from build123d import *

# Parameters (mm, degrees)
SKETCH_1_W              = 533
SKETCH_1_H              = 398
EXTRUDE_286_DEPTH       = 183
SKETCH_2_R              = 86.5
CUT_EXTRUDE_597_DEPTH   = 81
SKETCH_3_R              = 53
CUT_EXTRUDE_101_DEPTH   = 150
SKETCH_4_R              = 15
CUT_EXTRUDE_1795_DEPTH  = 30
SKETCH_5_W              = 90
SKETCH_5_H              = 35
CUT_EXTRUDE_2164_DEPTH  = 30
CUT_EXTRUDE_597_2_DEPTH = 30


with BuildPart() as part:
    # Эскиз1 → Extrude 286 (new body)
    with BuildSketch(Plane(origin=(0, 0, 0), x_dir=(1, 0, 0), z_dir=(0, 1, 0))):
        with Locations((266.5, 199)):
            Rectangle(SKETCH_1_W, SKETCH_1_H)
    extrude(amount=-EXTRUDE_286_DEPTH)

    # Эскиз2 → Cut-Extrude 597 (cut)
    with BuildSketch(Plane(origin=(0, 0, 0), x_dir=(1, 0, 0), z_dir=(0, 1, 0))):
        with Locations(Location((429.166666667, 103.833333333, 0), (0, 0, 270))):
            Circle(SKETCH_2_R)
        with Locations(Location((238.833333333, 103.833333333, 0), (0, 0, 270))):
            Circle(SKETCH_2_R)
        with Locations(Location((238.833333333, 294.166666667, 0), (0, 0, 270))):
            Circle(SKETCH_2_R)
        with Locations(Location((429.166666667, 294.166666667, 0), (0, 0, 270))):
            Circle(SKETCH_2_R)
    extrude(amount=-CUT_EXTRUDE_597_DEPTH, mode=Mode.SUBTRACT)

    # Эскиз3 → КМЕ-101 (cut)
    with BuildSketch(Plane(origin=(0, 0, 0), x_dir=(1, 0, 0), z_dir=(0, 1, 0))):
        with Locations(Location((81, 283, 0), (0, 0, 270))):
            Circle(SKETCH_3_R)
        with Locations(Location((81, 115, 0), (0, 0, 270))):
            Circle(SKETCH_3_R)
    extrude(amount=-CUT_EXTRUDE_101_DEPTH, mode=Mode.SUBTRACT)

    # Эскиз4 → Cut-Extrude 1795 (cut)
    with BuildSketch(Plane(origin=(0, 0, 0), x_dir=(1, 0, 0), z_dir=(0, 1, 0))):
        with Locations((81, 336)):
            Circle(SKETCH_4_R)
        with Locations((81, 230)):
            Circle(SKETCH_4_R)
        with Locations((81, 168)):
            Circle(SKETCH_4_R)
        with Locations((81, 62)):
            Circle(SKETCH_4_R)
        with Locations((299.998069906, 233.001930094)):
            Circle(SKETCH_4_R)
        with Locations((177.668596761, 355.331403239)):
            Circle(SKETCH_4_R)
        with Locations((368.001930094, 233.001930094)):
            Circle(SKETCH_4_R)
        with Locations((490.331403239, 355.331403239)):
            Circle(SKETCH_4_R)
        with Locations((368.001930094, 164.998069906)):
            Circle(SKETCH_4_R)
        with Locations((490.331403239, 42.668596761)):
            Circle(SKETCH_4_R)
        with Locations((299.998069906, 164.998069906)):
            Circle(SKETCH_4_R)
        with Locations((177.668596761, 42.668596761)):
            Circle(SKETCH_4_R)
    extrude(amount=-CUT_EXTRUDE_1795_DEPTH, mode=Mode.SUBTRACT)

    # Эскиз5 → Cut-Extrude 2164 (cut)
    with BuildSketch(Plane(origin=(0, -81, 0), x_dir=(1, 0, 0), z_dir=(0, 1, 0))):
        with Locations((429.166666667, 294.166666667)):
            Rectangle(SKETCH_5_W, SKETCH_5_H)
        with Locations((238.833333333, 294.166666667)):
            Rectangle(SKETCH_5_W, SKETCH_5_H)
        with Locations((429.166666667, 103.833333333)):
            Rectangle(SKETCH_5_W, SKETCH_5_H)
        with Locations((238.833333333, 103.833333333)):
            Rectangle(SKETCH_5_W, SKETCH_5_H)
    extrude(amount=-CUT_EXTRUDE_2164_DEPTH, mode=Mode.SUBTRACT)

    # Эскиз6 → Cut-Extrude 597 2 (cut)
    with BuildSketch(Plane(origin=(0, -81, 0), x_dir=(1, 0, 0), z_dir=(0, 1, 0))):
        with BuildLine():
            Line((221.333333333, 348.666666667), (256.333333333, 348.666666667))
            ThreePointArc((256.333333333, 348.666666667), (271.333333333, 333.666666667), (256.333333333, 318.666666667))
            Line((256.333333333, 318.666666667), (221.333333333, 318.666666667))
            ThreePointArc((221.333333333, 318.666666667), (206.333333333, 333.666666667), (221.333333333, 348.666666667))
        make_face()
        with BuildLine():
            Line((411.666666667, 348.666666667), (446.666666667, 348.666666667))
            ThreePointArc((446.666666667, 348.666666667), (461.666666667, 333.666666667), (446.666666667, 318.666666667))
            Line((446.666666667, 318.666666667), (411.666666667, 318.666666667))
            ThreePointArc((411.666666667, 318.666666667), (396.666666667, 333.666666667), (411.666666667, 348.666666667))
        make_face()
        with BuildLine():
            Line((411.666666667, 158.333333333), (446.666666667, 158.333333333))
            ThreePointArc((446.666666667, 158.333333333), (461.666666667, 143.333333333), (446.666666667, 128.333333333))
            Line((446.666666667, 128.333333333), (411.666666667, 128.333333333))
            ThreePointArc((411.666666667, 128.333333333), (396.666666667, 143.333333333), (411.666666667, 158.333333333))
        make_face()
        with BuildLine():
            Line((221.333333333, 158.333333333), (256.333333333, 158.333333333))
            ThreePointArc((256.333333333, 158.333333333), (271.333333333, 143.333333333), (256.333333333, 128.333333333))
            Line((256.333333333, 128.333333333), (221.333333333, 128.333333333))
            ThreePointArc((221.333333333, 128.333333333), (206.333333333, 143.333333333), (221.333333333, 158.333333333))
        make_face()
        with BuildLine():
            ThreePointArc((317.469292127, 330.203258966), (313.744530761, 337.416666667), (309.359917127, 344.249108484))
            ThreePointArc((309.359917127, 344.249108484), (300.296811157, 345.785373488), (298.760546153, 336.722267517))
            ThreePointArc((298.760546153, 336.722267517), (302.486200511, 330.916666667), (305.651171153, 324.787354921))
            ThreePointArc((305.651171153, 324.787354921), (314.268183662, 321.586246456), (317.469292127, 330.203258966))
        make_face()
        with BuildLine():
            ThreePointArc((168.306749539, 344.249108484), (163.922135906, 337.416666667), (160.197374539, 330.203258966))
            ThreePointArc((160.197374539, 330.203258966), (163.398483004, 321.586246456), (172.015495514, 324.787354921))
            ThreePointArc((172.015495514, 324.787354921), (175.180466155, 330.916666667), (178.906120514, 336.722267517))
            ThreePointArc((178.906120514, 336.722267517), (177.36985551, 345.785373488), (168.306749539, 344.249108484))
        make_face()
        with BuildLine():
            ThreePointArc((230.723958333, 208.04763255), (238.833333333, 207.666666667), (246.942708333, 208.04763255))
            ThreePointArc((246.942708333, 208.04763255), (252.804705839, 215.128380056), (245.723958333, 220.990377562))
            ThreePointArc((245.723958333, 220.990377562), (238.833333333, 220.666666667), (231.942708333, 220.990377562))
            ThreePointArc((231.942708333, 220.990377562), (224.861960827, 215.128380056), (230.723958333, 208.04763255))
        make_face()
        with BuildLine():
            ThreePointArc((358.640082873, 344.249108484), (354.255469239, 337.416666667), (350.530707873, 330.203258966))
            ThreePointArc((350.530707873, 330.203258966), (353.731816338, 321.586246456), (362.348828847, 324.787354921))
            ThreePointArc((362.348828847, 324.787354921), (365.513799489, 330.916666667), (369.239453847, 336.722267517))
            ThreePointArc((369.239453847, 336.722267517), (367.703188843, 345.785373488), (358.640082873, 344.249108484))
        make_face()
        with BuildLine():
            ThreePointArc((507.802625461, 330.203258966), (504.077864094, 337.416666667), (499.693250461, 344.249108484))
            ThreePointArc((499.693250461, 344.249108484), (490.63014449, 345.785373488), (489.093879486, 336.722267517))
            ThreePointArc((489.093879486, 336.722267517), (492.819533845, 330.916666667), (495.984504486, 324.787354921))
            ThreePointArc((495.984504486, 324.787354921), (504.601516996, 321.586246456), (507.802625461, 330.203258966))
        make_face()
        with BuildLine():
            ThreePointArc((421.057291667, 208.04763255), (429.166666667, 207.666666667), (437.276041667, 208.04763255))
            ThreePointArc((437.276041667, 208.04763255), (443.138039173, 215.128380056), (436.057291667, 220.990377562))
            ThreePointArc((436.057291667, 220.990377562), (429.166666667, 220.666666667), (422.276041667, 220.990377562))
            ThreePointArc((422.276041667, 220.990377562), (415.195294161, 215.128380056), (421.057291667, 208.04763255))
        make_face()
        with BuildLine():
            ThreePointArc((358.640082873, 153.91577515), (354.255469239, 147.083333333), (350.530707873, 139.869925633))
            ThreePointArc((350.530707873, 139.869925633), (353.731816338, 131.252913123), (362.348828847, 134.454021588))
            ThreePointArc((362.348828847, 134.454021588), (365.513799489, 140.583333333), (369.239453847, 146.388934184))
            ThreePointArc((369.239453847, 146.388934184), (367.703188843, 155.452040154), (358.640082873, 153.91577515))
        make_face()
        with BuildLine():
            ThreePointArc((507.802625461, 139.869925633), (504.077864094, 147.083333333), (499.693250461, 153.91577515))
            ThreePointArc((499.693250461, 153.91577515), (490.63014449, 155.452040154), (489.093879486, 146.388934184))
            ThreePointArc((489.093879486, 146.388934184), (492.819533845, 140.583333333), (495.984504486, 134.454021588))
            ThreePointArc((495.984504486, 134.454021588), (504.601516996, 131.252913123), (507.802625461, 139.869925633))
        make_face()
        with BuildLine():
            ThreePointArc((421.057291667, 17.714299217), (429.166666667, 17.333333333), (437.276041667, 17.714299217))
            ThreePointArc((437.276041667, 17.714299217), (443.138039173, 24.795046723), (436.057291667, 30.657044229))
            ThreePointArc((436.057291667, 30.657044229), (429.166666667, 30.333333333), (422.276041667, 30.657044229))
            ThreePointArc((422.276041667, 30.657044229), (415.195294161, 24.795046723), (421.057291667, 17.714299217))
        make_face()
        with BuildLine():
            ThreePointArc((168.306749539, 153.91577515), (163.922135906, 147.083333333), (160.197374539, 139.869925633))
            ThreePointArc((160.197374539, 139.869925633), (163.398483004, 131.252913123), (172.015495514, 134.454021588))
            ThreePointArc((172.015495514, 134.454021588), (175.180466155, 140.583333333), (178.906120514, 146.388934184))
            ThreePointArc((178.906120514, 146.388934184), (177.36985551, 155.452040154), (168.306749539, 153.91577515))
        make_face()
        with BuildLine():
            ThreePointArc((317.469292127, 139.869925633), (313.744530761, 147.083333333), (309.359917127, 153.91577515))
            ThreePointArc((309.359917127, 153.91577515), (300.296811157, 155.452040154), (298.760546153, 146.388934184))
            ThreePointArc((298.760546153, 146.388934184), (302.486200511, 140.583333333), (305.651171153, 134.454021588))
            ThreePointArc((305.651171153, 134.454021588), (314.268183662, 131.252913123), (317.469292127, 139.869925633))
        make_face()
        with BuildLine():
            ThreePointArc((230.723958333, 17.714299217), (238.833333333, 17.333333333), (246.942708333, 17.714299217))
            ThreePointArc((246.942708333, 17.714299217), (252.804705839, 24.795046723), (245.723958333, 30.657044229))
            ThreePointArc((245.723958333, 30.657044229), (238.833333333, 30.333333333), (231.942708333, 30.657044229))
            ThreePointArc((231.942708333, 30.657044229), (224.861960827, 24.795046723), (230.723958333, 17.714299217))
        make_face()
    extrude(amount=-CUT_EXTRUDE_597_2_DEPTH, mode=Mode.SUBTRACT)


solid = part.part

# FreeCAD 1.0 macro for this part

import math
import FreeCAD as App
import Part
import Sketcher
from FreeCAD import Vector
Q = App.Units.Quantity

doc = App.newDocument("Part")
body = doc.addObject("PartDesign::Body", "Body")

# Sketch on XZ plane
sketch1 = doc.addObject("Sketcher::SketchObject", "Sketch")
body.addObject(sketch1)
sketch1.AttachmentSupport = (doc.XZ_Plane, [""])
sketch1.MapMode = "FlatFace"
sketch1.addGeometry(Part.LineSegment(Vector(0, -398, 0), Vector(0, 0, 0)), False)
sketch1.addGeometry(Part.LineSegment(Vector(0, 0, 0), Vector(533, 0, 0)), False)
sketch1.addGeometry(Part.LineSegment(Vector(533, 0, 0), Vector(533, -398, 0)), False)
sketch1.addGeometry(Part.LineSegment(Vector(533, -398, 0), Vector(0, -398, 0)), False)
sketch1.addConstraint(Sketcher.Constraint("Coincident", 0, 2, 1, 1))
sketch1.addConstraint(Sketcher.Constraint("Coincident", 1, 2, 2, 1))
sketch1.addConstraint(Sketcher.Constraint("Coincident", 2, 2, 3, 1))
sketch1.addConstraint(Sketcher.Constraint("Coincident", 3, 2, 0, 1))
sketch1.addConstraint(Sketcher.Constraint("Vertical", 0))
sketch1.addConstraint(Sketcher.Constraint("Horizontal", 1))
sketch1.addConstraint(Sketcher.Constraint("Vertical", 2))
sketch1.addConstraint(Sketcher.Constraint("Horizontal", 3))
sketch1.addConstraint(Sketcher.Constraint("Coincident", 0, 2, -1, 1))
sketch1.addConstraint(Sketcher.Constraint("DistanceX", 1, 1, 1, 2, Q("533 mm")))
sketch1.addConstraint(Sketcher.Constraint("DistanceY", 0, 1, 0, 2, Q("398 mm")))
pad1 = doc.addObject("PartDesign::Pad", "Pad")
body.addObject(pad1)
pad1.Profile = sketch1
pad1.Length = 183

# Sketch on XZ plane
sketch2 = doc.addObject("Sketcher::SketchObject", "Sketch001")
body.addObject(sketch2)
sketch2.AttachmentSupport = (doc.XZ_Plane, [""])
sketch2.MapMode = "FlatFace"
sketch2.addGeometry(Part.Circle(Vector(429, -104, 0), Vector(0, 0, 1), 86), False)
sketch2.addGeometry(Part.Circle(Vector(239, -104, 0), Vector(0, 0, 1), 86), False)
sketch2.addGeometry(Part.Circle(Vector(239, -294, 0), Vector(0, 0, 1), 86), False)
sketch2.addGeometry(Part.Circle(Vector(429, -294, 0), Vector(0, 0, 1), 86), False)
sketch2.addConstraint(Sketcher.Constraint("Equal", 0, 1))
sketch2.addConstraint(Sketcher.Constraint("Equal", 1, 2))
sketch2.addConstraint(Sketcher.Constraint("Equal", 2, 3))
sketch2.addConstraint(Sketcher.Constraint("Horizontal", 0, 3, 1, 3))
sketch2.addConstraint(Sketcher.Constraint("Horizontal", 2, 3, 3, 3))
sketch2.addConstraint(Sketcher.Constraint("Vertical", 1, 3, 2, 3))
sketch2.addConstraint(Sketcher.Constraint("Vertical", 0, 3, 3, 3))
sketch2.addConstraint(Sketcher.Constraint("Diameter", 0, Q("173 mm")))
sketch2.addConstraint(Sketcher.Constraint("DistanceX", -1, 1, 0, 3, Q("429.166667 mm")))
sketch2.addConstraint(Sketcher.Constraint("DistanceY", 0, 3, -1, 1, Q("103.833333 mm")))
sketch2.addConstraint(Sketcher.Constraint("DistanceX", -1, 1, 1, 3, Q("238.833333 mm")))
sketch2.addConstraint(Sketcher.Constraint("DistanceY", 2, 3, -1, 1, Q("294.166667 mm")))
pocket1 = doc.addObject("PartDesign::Pocket", "Pocket")
body.addObject(pocket1)
pocket1.Profile = sketch2
pocket1.Length = 81
pocket1.Reversed = True

# Sketch on XZ plane
sketch3 = doc.addObject("Sketcher::SketchObject", "Sketch002")
body.addObject(sketch3)
sketch3.AttachmentSupport = (doc.XZ_Plane, [""])
sketch3.MapMode = "FlatFace"
sketch3.addGeometry(Part.Circle(Vector(81, -283, 0), Vector(0, 0, 1), 53), False)
sketch3.addGeometry(Part.Circle(Vector(81, -115, 0), Vector(0, 0, 1), 53), False)
sketch3.addConstraint(Sketcher.Constraint("Equal", 0, 1))
sketch3.addConstraint(Sketcher.Constraint("Vertical", 0, 3, 1, 3))
sketch3.addConstraint(Sketcher.Constraint("Diameter", 0, Q("106 mm")))
sketch3.addConstraint(Sketcher.Constraint("DistanceX", -1, 1, 0, 3, Q("81 mm")))
sketch3.addConstraint(Sketcher.Constraint("DistanceY", 0, 3, -1, 1, Q("283 mm")))
sketch3.addConstraint(Sketcher.Constraint("DistanceY", 1, 3, -1, 1, Q("115 mm")))
pocket2 = doc.addObject("PartDesign::Pocket", "Pocket001")
body.addObject(pocket2)
pocket2.Profile = sketch3
pocket2.Length = 150
pocket2.Reversed = True

# Sketch on XZ plane
sketch4 = doc.addObject("Sketcher::SketchObject", "Sketch003")
body.addObject(sketch4)
sketch4.AttachmentSupport = (doc.XZ_Plane, [""])
sketch4.MapMode = "FlatFace"
sketch4.addGeometry(Part.Circle(Vector(81, -336, 0), Vector(0, 0, 1), 15), False)
sketch4.addGeometry(Part.Circle(Vector(81, -230, 0), Vector(0, 0, 1), 15), False)
sketch4.addGeometry(Part.Circle(Vector(81, -168, 0), Vector(0, 0, 1), 15), False)
sketch4.addGeometry(Part.Circle(Vector(81, -62, 0), Vector(0, 0, 1), 15), False)
sketch4.addGeometry(Part.Circle(Vector(300, -233, 0), Vector(0, 0, 1), 15), False)
sketch4.addGeometry(Part.Circle(Vector(178, -355, 0), Vector(0, 0, 1), 15), False)
sketch4.addGeometry(Part.Circle(Vector(368, -233, 0), Vector(0, 0, 1), 15), False)
sketch4.addGeometry(Part.Circle(Vector(490, -355, 0), Vector(0, 0, 1), 15), False)
sketch4.addGeometry(Part.Circle(Vector(368, -165, 0), Vector(0, 0, 1), 15), False)
sketch4.addGeometry(Part.Circle(Vector(490, -43, 0), Vector(0, 0, 1), 15), False)
sketch4.addGeometry(Part.Circle(Vector(300, -165, 0), Vector(0, 0, 1), 15), False)
sketch4.addGeometry(Part.Circle(Vector(178, -43, 0), Vector(0, 0, 1), 15), False)
sketch4.addConstraint(Sketcher.Constraint("Equal", 0, 1))
sketch4.addConstraint(Sketcher.Constraint("Equal", 1, 2))
sketch4.addConstraint(Sketcher.Constraint("Equal", 2, 3))
sketch4.addConstraint(Sketcher.Constraint("Equal", 3, 4))
sketch4.addConstraint(Sketcher.Constraint("Equal", 4, 5))
sketch4.addConstraint(Sketcher.Constraint("Equal", 5, 6))
sketch4.addConstraint(Sketcher.Constraint("Equal", 6, 7))
sketch4.addConstraint(Sketcher.Constraint("Equal", 7, 8))
sketch4.addConstraint(Sketcher.Constraint("Equal", 8, 9))
sketch4.addConstraint(Sketcher.Constraint("Equal", 9, 10))
sketch4.addConstraint(Sketcher.Constraint("Equal", 10, 11))
sketch4.addConstraint(Sketcher.Constraint("Horizontal", 4, 3, 6, 3))
sketch4.addConstraint(Sketcher.Constraint("Horizontal", 5, 3, 7, 3))
sketch4.addConstraint(Sketcher.Constraint("Horizontal", 8, 3, 10, 3))
sketch4.addConstraint(Sketcher.Constraint("Horizontal", 9, 3, 11, 3))
sketch4.addConstraint(Sketcher.Constraint("Vertical", 0, 3, 1, 3))
sketch4.addConstraint(Sketcher.Constraint("Vertical", 1, 3, 2, 3))
sketch4.addConstraint(Sketcher.Constraint("Vertical", 2, 3, 3, 3))
sketch4.addConstraint(Sketcher.Constraint("Vertical", 6, 3, 8, 3))
sketch4.addConstraint(Sketcher.Constraint("Vertical", 7, 3, 9, 3))
sketch4.addConstraint(Sketcher.Constraint("Vertical", 4, 3, 10, 3))
sketch4.addConstraint(Sketcher.Constraint("Vertical", 5, 3, 11, 3))
sketch4.addConstraint(Sketcher.Constraint("Diameter", 0, Q("30 mm")))
sketch4.addConstraint(Sketcher.Constraint("DistanceX", -1, 1, 0, 3, Q("81 mm")))
sketch4.addConstraint(Sketcher.Constraint("DistanceY", 0, 3, -1, 1, Q("336 mm")))
sketch4.addConstraint(Sketcher.Constraint("DistanceY", 1, 3, -1, 1, Q("230 mm")))
sketch4.addConstraint(Sketcher.Constraint("DistanceY", 2, 3, -1, 1, Q("168 mm")))
sketch4.addConstraint(Sketcher.Constraint("DistanceY", 3, 3, -1, 1, Q("62 mm")))
sketch4.addConstraint(Sketcher.Constraint("DistanceX", -1, 1, 4, 3, Q("299.99807 mm")))
sketch4.addConstraint(Sketcher.Constraint("DistanceY", 4, 3, -1, 1, Q("233.00193 mm")))
sketch4.addConstraint(Sketcher.Constraint("DistanceX", -1, 1, 6, 3, Q("368.00193 mm")))
sketch4.addConstraint(Sketcher.Constraint("DistanceY", 8, 3, -1, 1, Q("164.99807 mm")))
sketch4.addConstraint(Sketcher.Constraint("DistanceX", -1, 1, 5, 3, Q("177.668597 mm")))
sketch4.addConstraint(Sketcher.Constraint("DistanceY", 5, 3, -1, 1, Q("355.331403 mm")))
sketch4.addConstraint(Sketcher.Constraint("DistanceX", -1, 1, 7, 3, Q("490.331403 mm")))
sketch4.addConstraint(Sketcher.Constraint("DistanceY", 9, 3, -1, 1, Q("42.668597 mm")))
pocket3 = doc.addObject("PartDesign::Pocket", "Pocket002")
body.addObject(pocket3)
pocket3.Profile = sketch4
pocket3.Length = 30
pocket3.Reversed = True

# Sketch on XZ plane
sketch5 = doc.addObject("Sketcher::SketchObject", "Sketch004")
body.addObject(sketch5)
sketch5.AttachmentSupport = (doc.XZ_Plane, [""])
sketch5.MapMode = "FlatFace"
sketch5.AttachmentOffset = App.Placement(Vector(0, 0, 81), App.Rotation())
sketch5.addGeometry(Part.LineSegment(Vector(384, -312, 0), Vector(384, -277, 0)), False)
sketch5.addGeometry(Part.LineSegment(Vector(384, -277, 0), Vector(474, -277, 0)), False)
sketch5.addGeometry(Part.LineSegment(Vector(474, -277, 0), Vector(474, -312, 0)), False)
sketch5.addGeometry(Part.LineSegment(Vector(474, -312, 0), Vector(384, -312, 0)), False)
sketch5.addGeometry(Part.LineSegment(Vector(194, -312, 0), Vector(194, -277, 0)), False)
sketch5.addGeometry(Part.LineSegment(Vector(194, -277, 0), Vector(284, -277, 0)), False)
sketch5.addGeometry(Part.LineSegment(Vector(284, -277, 0), Vector(284, -312, 0)), False)
sketch5.addGeometry(Part.LineSegment(Vector(284, -312, 0), Vector(194, -312, 0)), False)
sketch5.addGeometry(Part.LineSegment(Vector(384, -121, 0), Vector(384, -86, 0)), False)
sketch5.addGeometry(Part.LineSegment(Vector(384, -86, 0), Vector(474, -86, 0)), False)
sketch5.addGeometry(Part.LineSegment(Vector(474, -86, 0), Vector(474, -121, 0)), False)
sketch5.addGeometry(Part.LineSegment(Vector(474, -121, 0), Vector(384, -121, 0)), False)
sketch5.addGeometry(Part.LineSegment(Vector(194, -121, 0), Vector(194, -86, 0)), False)
sketch5.addGeometry(Part.LineSegment(Vector(194, -86, 0), Vector(284, -86, 0)), False)
sketch5.addGeometry(Part.LineSegment(Vector(284, -86, 0), Vector(284, -121, 0)), False)
sketch5.addGeometry(Part.LineSegment(Vector(284, -121, 0), Vector(194, -121, 0)), False)
sketch5.addConstraint(Sketcher.Constraint("Coincident", 0, 2, 1, 1))
sketch5.addConstraint(Sketcher.Constraint("Coincident", 1, 2, 2, 1))
sketch5.addConstraint(Sketcher.Constraint("Coincident", 2, 2, 3, 1))
sketch5.addConstraint(Sketcher.Constraint("Coincident", 3, 2, 0, 1))
sketch5.addConstraint(Sketcher.Constraint("Coincident", 4, 2, 5, 1))
sketch5.addConstraint(Sketcher.Constraint("Coincident", 5, 2, 6, 1))
sketch5.addConstraint(Sketcher.Constraint("Coincident", 6, 2, 7, 1))
sketch5.addConstraint(Sketcher.Constraint("Coincident", 7, 2, 4, 1))
sketch5.addConstraint(Sketcher.Constraint("Coincident", 8, 2, 9, 1))
sketch5.addConstraint(Sketcher.Constraint("Coincident", 9, 2, 10, 1))
sketch5.addConstraint(Sketcher.Constraint("Coincident", 10, 2, 11, 1))
sketch5.addConstraint(Sketcher.Constraint("Coincident", 11, 2, 8, 1))
sketch5.addConstraint(Sketcher.Constraint("Coincident", 12, 2, 13, 1))
sketch5.addConstraint(Sketcher.Constraint("Coincident", 13, 2, 14, 1))
sketch5.addConstraint(Sketcher.Constraint("Coincident", 14, 2, 15, 1))
sketch5.addConstraint(Sketcher.Constraint("Coincident", 15, 2, 12, 1))
sketch5.addConstraint(Sketcher.Constraint("Vertical", 0))
sketch5.addConstraint(Sketcher.Constraint("Horizontal", 1))
sketch5.addConstraint(Sketcher.Constraint("Vertical", 2))
sketch5.addConstraint(Sketcher.Constraint("Horizontal", 3))
sketch5.addConstraint(Sketcher.Constraint("Vertical", 4))
sketch5.addConstraint(Sketcher.Constraint("Horizontal", 5))
sketch5.addConstraint(Sketcher.Constraint("Vertical", 6))
sketch5.addConstraint(Sketcher.Constraint("Horizontal", 7))
sketch5.addConstraint(Sketcher.Constraint("Vertical", 8))
sketch5.addConstraint(Sketcher.Constraint("Horizontal", 9))
sketch5.addConstraint(Sketcher.Constraint("Vertical", 10))
sketch5.addConstraint(Sketcher.Constraint("Horizontal", 11))
sketch5.addConstraint(Sketcher.Constraint("Vertical", 12))
sketch5.addConstraint(Sketcher.Constraint("Horizontal", 13))
sketch5.addConstraint(Sketcher.Constraint("Vertical", 14))
sketch5.addConstraint(Sketcher.Constraint("Horizontal", 15))
sketch5.addConstraint(Sketcher.Constraint("Horizontal", 1, 2, 4, 2))
sketch5.addConstraint(Sketcher.Constraint("Horizontal", 3, 2, 6, 2))
sketch5.addConstraint(Sketcher.Constraint("Horizontal", 9, 2, 12, 2))
sketch5.addConstraint(Sketcher.Constraint("Horizontal", 11, 2, 14, 2))
sketch5.addConstraint(Sketcher.Constraint("Vertical", 3, 2, 8, 2))
sketch5.addConstraint(Sketcher.Constraint("Vertical", 2, 2, 9, 2))
sketch5.addConstraint(Sketcher.Constraint("Vertical", 7, 2, 12, 2))
sketch5.addConstraint(Sketcher.Constraint("Vertical", 6, 2, 13, 2))
sketch5.addConstraint(Sketcher.Constraint("Equal", 3, 5))
sketch5.addConstraint(Sketcher.Constraint("Equal", 6, 8))
sketch5.addConstraint(Sketcher.Constraint("DistanceX", 1, 1, 1, 2, Q("90 mm")))
sketch5.addConstraint(Sketcher.Constraint("DistanceY", 0, 1, 0, 2, Q("35 mm")))
sketch5.addConstraint(Sketcher.Constraint("DistanceX", -1, 1, 0, 2, Q("384.166667 mm")))
sketch5.addConstraint(Sketcher.Constraint("DistanceY", 0, 2, -1, 1, Q("276.666667 mm")))
sketch5.addConstraint(Sketcher.Constraint("DistanceX", -1, 1, 4, 2, Q("193.833333 mm")))
sketch5.addConstraint(Sketcher.Constraint("DistanceY", 8, 2, -1, 1, Q("86.333333 mm")))
pocket4 = doc.addObject("PartDesign::Pocket", "Pocket003")
body.addObject(pocket4)
pocket4.Profile = sketch5
pocket4.Length = 30
pocket4.Reversed = True

# Sketch on XZ plane
sketch6 = doc.addObject("Sketcher::SketchObject", "Sketch005")
body.addObject(sketch6)
sketch6.AttachmentSupport = (doc.XZ_Plane, [""])
sketch6.MapMode = "FlatFace"
sketch6.AttachmentOffset = App.Placement(Vector(0, 0, 81), App.Rotation())
sketch6.addGeometry(Part.LineSegment(Vector(256.333333, -348.666667, 0), Vector(221.333333, -348.666667, 0)), False)
sketch6.addGeometry(Part.ArcOfCircle(Part.Circle(Vector(221.333333, -333.666667, 0), Vector(0, 0, 1), 15), math.radians(90), math.radians(270)), False)
sketch6.addGeometry(Part.LineSegment(Vector(221.333333, -318.666667, 0), Vector(256.333333, -318.666667, 0)), False)
sketch6.addGeometry(Part.ArcOfCircle(Part.Circle(Vector(256.333333, -333.666667, 0), Vector(0, 0, 1), 15), math.radians(-90), math.radians(90)), False)
sketch6.addGeometry(Part.LineSegment(Vector(446.666667, -348.666667, 0), Vector(411.666667, -348.666667, 0)), False)
sketch6.addGeometry(Part.ArcOfCircle(Part.Circle(Vector(411.666667, -333.666667, 0), Vector(0, 0, 1), 15), math.radians(90), math.radians(270)), False)
sketch6.addGeometry(Part.LineSegment(Vector(411.666667, -318.666667, 0), Vector(446.666667, -318.666667, 0)), False)
sketch6.addGeometry(Part.ArcOfCircle(Part.Circle(Vector(446.666667, -333.666667, 0), Vector(0, 0, 1), 15), math.radians(-90), math.radians(90)), False)
sketch6.addGeometry(Part.LineSegment(Vector(446.666667, -158.333333, 0), Vector(411.666667, -158.333333, 0)), False)
sketch6.addGeometry(Part.ArcOfCircle(Part.Circle(Vector(411.666667, -143.333333, 0), Vector(0, 0, 1), 15), math.radians(90), math.radians(270)), False)
sketch6.addGeometry(Part.LineSegment(Vector(411.666667, -128.333333, 0), Vector(446.666667, -128.333333, 0)), False)
sketch6.addGeometry(Part.ArcOfCircle(Part.Circle(Vector(446.666667, -143.333333, 0), Vector(0, 0, 1), 15), math.radians(-90), math.radians(90)), False)
sketch6.addGeometry(Part.LineSegment(Vector(256.333333, -158.333333, 0), Vector(221.333333, -158.333333, 0)), False)
sketch6.addGeometry(Part.ArcOfCircle(Part.Circle(Vector(221.333333, -143.333333, 0), Vector(0, 0, 1), 15), math.radians(90), math.radians(270)), False)
sketch6.addGeometry(Part.LineSegment(Vector(221.333333, -128.333333, 0), Vector(256.333333, -128.333333, 0)), False)
sketch6.addGeometry(Part.ArcOfCircle(Part.Circle(Vector(256.333333, -143.333333, 0), Vector(0, 0, 1), 15), math.radians(-90), math.radians(90)), False)
sketch6.addGeometry(Part.ArcOfCircle(Part.Circle(Vector(238.833333, -294.166667, 0), Vector(0, 0, 1), 86.5), math.radians(-35.379379), math.radians(-24.620621)), False)
sketch6.addGeometry(Part.ArcOfCircle(Part.Circle(Vector(304.060232, -340.485688, 0), Vector(0, 0, 1), 6.5), math.radians(144.620621), math.radians(324.620621)), False)
sketch6.addGeometry(Part.ArcOfCircle(Part.Circle(Vector(238.833333, -294.166667, 0), Vector(0, 0, 1), 73.5), math.radians(-35.379379), math.radians(-24.620621)), False)
sketch6.addGeometry(Part.ArcOfCircle(Part.Circle(Vector(311.560232, -327.495307, 0), Vector(0, 0, 1), 6.5), math.radians(-24.620621), math.radians(155.379379)), False)
sketch6.addGeometry(Part.ArcOfCircle(Part.Circle(Vector(238.833333, -294.166667, 0), Vector(0, 0, 1), 86.5), math.radians(-155.379379), math.radians(-144.620621)), False)
sketch6.addGeometry(Part.ArcOfCircle(Part.Circle(Vector(166.106435, -327.495307, 0), Vector(0, 0, 1), 6.5), math.radians(24.620621), math.radians(204.620621)), False)
sketch6.addGeometry(Part.ArcOfCircle(Part.Circle(Vector(238.833333, -294.166667, 0), Vector(0, 0, 1), 73.5), math.radians(-155.379379), math.radians(-144.620621)), False)
sketch6.addGeometry(Part.ArcOfCircle(Part.Circle(Vector(173.606435, -340.485688, 0), Vector(0, 0, 1), 6.5), math.radians(-144.620621), math.radians(35.379379)), False)
sketch6.addGeometry(Part.ArcOfCircle(Part.Circle(Vector(238.833333, -294.166667, 0), Vector(0, 0, 1), 86.5), math.radians(84.620621), math.radians(95.379379)), False)
sketch6.addGeometry(Part.ArcOfCircle(Part.Circle(Vector(246.333333, -214.519005, 0), Vector(0, 0, 1), 6.5), math.radians(-95.379379), math.radians(84.620621)), False)
sketch6.addGeometry(Part.ArcOfCircle(Part.Circle(Vector(238.833333, -294.166667, 0), Vector(0, 0, 1), 73.5), math.radians(84.620621), math.radians(95.379379)), False)
sketch6.addGeometry(Part.ArcOfCircle(Part.Circle(Vector(231.333333, -214.519005, 0), Vector(0, 0, 1), 6.5), math.radians(95.379379), math.radians(275.379379)), False)
sketch6.addGeometry(Part.ArcOfCircle(Part.Circle(Vector(429.166667, -294.166667, 0), Vector(0, 0, 1), 86.5), math.radians(-155.379379), math.radians(-144.620621)), False)
sketch6.addGeometry(Part.ArcOfCircle(Part.Circle(Vector(356.439768, -327.495307, 0), Vector(0, 0, 1), 6.5), math.radians(24.620621), math.radians(204.620621)), False)
sketch6.addGeometry(Part.ArcOfCircle(Part.Circle(Vector(429.166667, -294.166667, 0), Vector(0, 0, 1), 73.5), math.radians(-155.379379), math.radians(-144.620621)), False)
sketch6.addGeometry(Part.ArcOfCircle(Part.Circle(Vector(363.939768, -340.485688, 0), Vector(0, 0, 1), 6.5), math.radians(-144.620621), math.radians(35.379379)), False)
sketch6.addGeometry(Part.ArcOfCircle(Part.Circle(Vector(429.166667, -294.166667, 0), Vector(0, 0, 1), 86.5), math.radians(-35.379379), math.radians(-24.620621)), False)
sketch6.addGeometry(Part.ArcOfCircle(Part.Circle(Vector(494.393565, -340.485688, 0), Vector(0, 0, 1), 6.5), math.radians(144.620621), math.radians(324.620621)), False)
sketch6.addGeometry(Part.ArcOfCircle(Part.Circle(Vector(429.166667, -294.166667, 0), Vector(0, 0, 1), 73.5), math.radians(-35.379379), math.radians(-24.620621)), False)
sketch6.addGeometry(Part.ArcOfCircle(Part.Circle(Vector(501.893565, -327.495307, 0), Vector(0, 0, 1), 6.5), math.radians(-24.620621), math.radians(155.379379)), False)
sketch6.addGeometry(Part.ArcOfCircle(Part.Circle(Vector(429.166667, -294.166667, 0), Vector(0, 0, 1), 86.5), math.radians(84.620621), math.radians(95.379379)), False)
sketch6.addGeometry(Part.ArcOfCircle(Part.Circle(Vector(436.666667, -214.519005, 0), Vector(0, 0, 1), 6.5), math.radians(-95.379379), math.radians(84.620621)), False)
sketch6.addGeometry(Part.ArcOfCircle(Part.Circle(Vector(429.166667, -294.166667, 0), Vector(0, 0, 1), 73.5), math.radians(84.620621), math.radians(95.379379)), False)
sketch6.addGeometry(Part.ArcOfCircle(Part.Circle(Vector(421.666667, -214.519005, 0), Vector(0, 0, 1), 6.5), math.radians(95.379379), math.radians(275.379379)), False)
sketch6.addGeometry(Part.ArcOfCircle(Part.Circle(Vector(429.166667, -103.833333, 0), Vector(0, 0, 1), 86.5), math.radians(-155.379379), math.radians(-144.620621)), False)
sketch6.addGeometry(Part.ArcOfCircle(Part.Circle(Vector(356.439768, -137.161974, 0), Vector(0, 0, 1), 6.5), math.radians(24.620621), math.radians(204.620621)), False)
sketch6.addGeometry(Part.ArcOfCircle(Part.Circle(Vector(429.166667, -103.833333, 0), Vector(0, 0, 1), 73.5), math.radians(-155.379379), math.radians(-144.620621)), False)
sketch6.addGeometry(Part.ArcOfCircle(Part.Circle(Vector(363.939768, -150.152355, 0), Vector(0, 0, 1), 6.5), math.radians(-144.620621), math.radians(35.379379)), False)
sketch6.addGeometry(Part.ArcOfCircle(Part.Circle(Vector(429.166667, -103.833333, 0), Vector(0, 0, 1), 86.5), math.radians(-35.379379), math.radians(-24.620621)), False)
sketch6.addGeometry(Part.ArcOfCircle(Part.Circle(Vector(494.393565, -150.152355, 0), Vector(0, 0, 1), 6.5), math.radians(144.620621), math.radians(324.620621)), False)
sketch6.addGeometry(Part.ArcOfCircle(Part.Circle(Vector(429.166667, -103.833333, 0), Vector(0, 0, 1), 73.5), math.radians(-35.379379), math.radians(-24.620621)), False)
sketch6.addGeometry(Part.ArcOfCircle(Part.Circle(Vector(501.893565, -137.161974, 0), Vector(0, 0, 1), 6.5), math.radians(-24.620621), math.radians(155.379379)), False)
sketch6.addGeometry(Part.ArcOfCircle(Part.Circle(Vector(429.166667, -103.833333, 0), Vector(0, 0, 1), 86.5), math.radians(84.620621), math.radians(95.379379)), False)
sketch6.addGeometry(Part.ArcOfCircle(Part.Circle(Vector(436.666667, -24.185672, 0), Vector(0, 0, 1), 6.5), math.radians(-95.379379), math.radians(84.620621)), False)
sketch6.addGeometry(Part.ArcOfCircle(Part.Circle(Vector(429.166667, -103.833333, 0), Vector(0, 0, 1), 73.5), math.radians(84.620621), math.radians(95.379379)), False)
sketch6.addGeometry(Part.ArcOfCircle(Part.Circle(Vector(421.666667, -24.185672, 0), Vector(0, 0, 1), 6.5), math.radians(95.379379), math.radians(275.379379)), False)
sketch6.addGeometry(Part.ArcOfCircle(Part.Circle(Vector(238.833333, -103.833333, 0), Vector(0, 0, 1), 86.5), math.radians(-155.379379), math.radians(-144.620621)), False)
sketch6.addGeometry(Part.ArcOfCircle(Part.Circle(Vector(166.106435, -137.161974, 0), Vector(0, 0, 1), 6.5), math.radians(24.620621), math.radians(204.620621)), False)
sketch6.addGeometry(Part.ArcOfCircle(Part.Circle(Vector(238.833333, -103.833333, 0), Vector(0, 0, 1), 73.5), math.radians(-155.379379), math.radians(-144.620621)), False)
sketch6.addGeometry(Part.ArcOfCircle(Part.Circle(Vector(173.606435, -150.152355, 0), Vector(0, 0, 1), 6.5), math.radians(-144.620621), math.radians(35.379379)), False)
sketch6.addGeometry(Part.ArcOfCircle(Part.Circle(Vector(238.833333, -103.833333, 0), Vector(0, 0, 1), 86.5), math.radians(-35.379379), math.radians(-24.620621)), False)
sketch6.addGeometry(Part.ArcOfCircle(Part.Circle(Vector(304.060232, -150.152355, 0), Vector(0, 0, 1), 6.5), math.radians(144.620621), math.radians(324.620621)), False)
sketch6.addGeometry(Part.ArcOfCircle(Part.Circle(Vector(238.833333, -103.833333, 0), Vector(0, 0, 1), 73.5), math.radians(-35.379379), math.radians(-24.620621)), False)
sketch6.addGeometry(Part.ArcOfCircle(Part.Circle(Vector(311.560232, -137.161974, 0), Vector(0, 0, 1), 6.5), math.radians(-24.620621), math.radians(155.379379)), False)
sketch6.addGeometry(Part.ArcOfCircle(Part.Circle(Vector(238.833333, -103.833333, 0), Vector(0, 0, 1), 86.5), math.radians(84.620621), math.radians(95.379379)), False)
sketch6.addGeometry(Part.ArcOfCircle(Part.Circle(Vector(246.333333, -24.185672, 0), Vector(0, 0, 1), 6.5), math.radians(-95.379379), math.radians(84.620621)), False)
sketch6.addGeometry(Part.ArcOfCircle(Part.Circle(Vector(238.833333, -103.833333, 0), Vector(0, 0, 1), 73.5), math.radians(84.620621), math.radians(95.379379)), False)
sketch6.addGeometry(Part.ArcOfCircle(Part.Circle(Vector(231.333333, -24.185672, 0), Vector(0, 0, 1), 6.5), math.radians(95.379379), math.radians(275.379379)), False)
sketch6.addConstraint(Sketcher.Constraint("Coincident", 0, 2, 1, 2))
sketch6.addConstraint(Sketcher.Constraint("Coincident", 1, 1, 2, 1))
sketch6.addConstraint(Sketcher.Constraint("Coincident", 2, 2, 3, 2))
sketch6.addConstraint(Sketcher.Constraint("Coincident", 3, 1, 0, 1))
sketch6.addConstraint(Sketcher.Constraint("Coincident", 4, 2, 5, 2))
sketch6.addConstraint(Sketcher.Constraint("Coincident", 5, 1, 6, 1))
sketch6.addConstraint(Sketcher.Constraint("Coincident", 6, 2, 7, 2))
sketch6.addConstraint(Sketcher.Constraint("Coincident", 7, 1, 4, 1))
sketch6.addConstraint(Sketcher.Constraint("Coincident", 8, 2, 9, 2))
sketch6.addConstraint(Sketcher.Constraint("Coincident", 9, 1, 10, 1))
sketch6.addConstraint(Sketcher.Constraint("Coincident", 10, 2, 11, 2))
sketch6.addConstraint(Sketcher.Constraint("Coincident", 11, 1, 8, 1))
sketch6.addConstraint(Sketcher.Constraint("Coincident", 12, 2, 13, 2))
sketch6.addConstraint(Sketcher.Constraint("Coincident", 13, 1, 14, 1))
sketch6.addConstraint(Sketcher.Constraint("Coincident", 14, 2, 15, 2))
sketch6.addConstraint(Sketcher.Constraint("Coincident", 15, 1, 12, 1))
sketch6.addConstraint(Sketcher.Constraint("Coincident", 16, 1, 17, 2))
sketch6.addConstraint(Sketcher.Constraint("Coincident", 17, 1, 18, 1))
sketch6.addConstraint(Sketcher.Constraint("Coincident", 18, 2, 19, 2))
sketch6.addConstraint(Sketcher.Constraint("Coincident", 19, 1, 16, 2))
sketch6.addConstraint(Sketcher.Constraint("Coincident", 20, 1, 21, 2))
sketch6.addConstraint(Sketcher.Constraint("Coincident", 21, 1, 22, 1))
sketch6.addConstraint(Sketcher.Constraint("Coincident", 22, 2, 23, 2))
sketch6.addConstraint(Sketcher.Constraint("Coincident", 23, 1, 20, 2))
sketch6.addConstraint(Sketcher.Constraint("Coincident", 24, 1, 25, 2))
sketch6.addConstraint(Sketcher.Constraint("Coincident", 25, 1, 26, 1))
sketch6.addConstraint(Sketcher.Constraint("Coincident", 26, 2, 27, 2))
sketch6.addConstraint(Sketcher.Constraint("Coincident", 27, 1, 24, 2))
sketch6.addConstraint(Sketcher.Constraint("Coincident", 28, 1, 29, 2))
sketch6.addConstraint(Sketcher.Constraint("Coincident", 29, 1, 30, 1))
sketch6.addConstraint(Sketcher.Constraint("Coincident", 30, 2, 31, 2))
sketch6.addConstraint(Sketcher.Constraint("Coincident", 31, 1, 28, 2))
sketch6.addConstraint(Sketcher.Constraint("Coincident", 32, 1, 33, 2))
sketch6.addConstraint(Sketcher.Constraint("Coincident", 33, 1, 34, 1))
sketch6.addConstraint(Sketcher.Constraint("Coincident", 34, 2, 35, 2))
sketch6.addConstraint(Sketcher.Constraint("Coincident", 35, 1, 32, 2))
sketch6.addConstraint(Sketcher.Constraint("Coincident", 36, 1, 37, 2))
sketch6.addConstraint(Sketcher.Constraint("Coincident", 37, 1, 38, 1))
sketch6.addConstraint(Sketcher.Constraint("Coincident", 38, 2, 39, 2))
sketch6.addConstraint(Sketcher.Constraint("Coincident", 39, 1, 36, 2))
sketch6.addConstraint(Sketcher.Constraint("Coincident", 40, 1, 41, 2))
sketch6.addConstraint(Sketcher.Constraint("Coincident", 41, 1, 42, 1))
sketch6.addConstraint(Sketcher.Constraint("Coincident", 42, 2, 43, 2))
sketch6.addConstraint(Sketcher.Constraint("Coincident", 43, 1, 40, 2))
sketch6.addConstraint(Sketcher.Constraint("Coincident", 44, 1, 45, 2))
sketch6.addConstraint(Sketcher.Constraint("Coincident", 45, 1, 46, 1))
sketch6.addConstraint(Sketcher.Constraint("Coincident", 46, 2, 47, 2))
sketch6.addConstraint(Sketcher.Constraint("Coincident", 47, 1, 44, 2))
sketch6.addConstraint(Sketcher.Constraint("Coincident", 48, 1, 49, 2))
sketch6.addConstraint(Sketcher.Constraint("Coincident", 49, 1, 50, 1))
sketch6.addConstraint(Sketcher.Constraint("Coincident", 50, 2, 51, 2))
sketch6.addConstraint(Sketcher.Constraint("Coincident", 51, 1, 48, 2))
sketch6.addConstraint(Sketcher.Constraint("Coincident", 52, 1, 53, 2))
sketch6.addConstraint(Sketcher.Constraint("Coincident", 53, 1, 54, 1))
sketch6.addConstraint(Sketcher.Constraint("Coincident", 54, 2, 55, 2))
sketch6.addConstraint(Sketcher.Constraint("Coincident", 55, 1, 52, 2))
sketch6.addConstraint(Sketcher.Constraint("Coincident", 56, 1, 57, 2))
sketch6.addConstraint(Sketcher.Constraint("Coincident", 57, 1, 58, 1))
sketch6.addConstraint(Sketcher.Constraint("Coincident", 58, 2, 59, 2))
sketch6.addConstraint(Sketcher.Constraint("Coincident", 59, 1, 56, 2))
sketch6.addConstraint(Sketcher.Constraint("Coincident", 60, 1, 61, 2))
sketch6.addConstraint(Sketcher.Constraint("Coincident", 61, 1, 62, 1))
sketch6.addConstraint(Sketcher.Constraint("Coincident", 62, 2, 63, 2))
sketch6.addConstraint(Sketcher.Constraint("Coincident", 63, 1, 60, 2))
sketch6.addConstraint(Sketcher.Constraint("Horizontal", 0))
sketch6.addConstraint(Sketcher.Constraint("Horizontal", 2))
sketch6.addConstraint(Sketcher.Constraint("Horizontal", 4))
sketch6.addConstraint(Sketcher.Constraint("Horizontal", 6))
sketch6.addConstraint(Sketcher.Constraint("Horizontal", 8))
sketch6.addConstraint(Sketcher.Constraint("Horizontal", 10))
sketch6.addConstraint(Sketcher.Constraint("Horizontal", 12))
sketch6.addConstraint(Sketcher.Constraint("Horizontal", 14))
sketch6.addConstraint(Sketcher.Constraint("Coincident", 18, 3, 16, 3))
sketch6.addConstraint(Sketcher.Constraint("Coincident", 20, 3, 16, 3))
sketch6.addConstraint(Sketcher.Constraint("Coincident", 22, 3, 16, 3))
sketch6.addConstraint(Sketcher.Constraint("Coincident", 24, 3, 16, 3))
sketch6.addConstraint(Sketcher.Constraint("Coincident", 26, 3, 16, 3))
sketch6.addConstraint(Sketcher.Constraint("Coincident", 30, 3, 28, 3))
sketch6.addConstraint(Sketcher.Constraint("Coincident", 32, 3, 28, 3))
sketch6.addConstraint(Sketcher.Constraint("Coincident", 34, 3, 28, 3))
sketch6.addConstraint(Sketcher.Constraint("Coincident", 36, 3, 28, 3))
sketch6.addConstraint(Sketcher.Constraint("Coincident", 38, 3, 28, 3))
sketch6.addConstraint(Sketcher.Constraint("Coincident", 42, 3, 40, 3))
sketch6.addConstraint(Sketcher.Constraint("Coincident", 44, 3, 40, 3))
sketch6.addConstraint(Sketcher.Constraint("Coincident", 46, 3, 40, 3))
sketch6.addConstraint(Sketcher.Constraint("Coincident", 48, 3, 40, 3))
sketch6.addConstraint(Sketcher.Constraint("Coincident", 50, 3, 40, 3))
sketch6.addConstraint(Sketcher.Constraint("Coincident", 54, 3, 52, 3))
sketch6.addConstraint(Sketcher.Constraint("Coincident", 56, 3, 52, 3))
sketch6.addConstraint(Sketcher.Constraint("Coincident", 58, 3, 52, 3))
sketch6.addConstraint(Sketcher.Constraint("Coincident", 60, 3, 52, 3))
sketch6.addConstraint(Sketcher.Constraint("Coincident", 62, 3, 52, 3))
sketch6.addConstraint(Sketcher.Constraint("Radius", 1, Q("15 mm")))
sketch6.addConstraint(Sketcher.Constraint("Radius", 5, Q("15 mm")))
sketch6.addConstraint(Sketcher.Constraint("Radius", 9, Q("15 mm")))
sketch6.addConstraint(Sketcher.Constraint("Radius", 13, Q("15 mm")))
sketch6.addConstraint(Sketcher.Constraint("Radius", 16, Q("86.5 mm")))
sketch6.addConstraint(Sketcher.Constraint("Radius", 17, Q("6.5 mm")))
sketch6.addConstraint(Sketcher.Constraint("Radius", 20, Q("86.5 mm")))
sketch6.addConstraint(Sketcher.Constraint("Radius", 21, Q("6.5 mm")))
sketch6.addConstraint(Sketcher.Constraint("Radius", 24, Q("86.5 mm")))
sketch6.addConstraint(Sketcher.Constraint("Radius", 25, Q("6.5 mm")))
sketch6.addConstraint(Sketcher.Constraint("Radius", 28, Q("86.5 mm")))
sketch6.addConstraint(Sketcher.Constraint("Radius", 29, Q("6.5 mm")))
sketch6.addConstraint(Sketcher.Constraint("Radius", 32, Q("86.5 mm")))
sketch6.addConstraint(Sketcher.Constraint("Radius", 33, Q("6.5 mm")))
sketch6.addConstraint(Sketcher.Constraint("Radius", 36, Q("86.5 mm")))
sketch6.addConstraint(Sketcher.Constraint("Radius", 37, Q("6.5 mm")))
sketch6.addConstraint(Sketcher.Constraint("Radius", 40, Q("86.5 mm")))
sketch6.addConstraint(Sketcher.Constraint("Radius", 41, Q("6.5 mm")))
sketch6.addConstraint(Sketcher.Constraint("Radius", 44, Q("86.5 mm")))
sketch6.addConstraint(Sketcher.Constraint("Radius", 45, Q("6.5 mm")))
sketch6.addConstraint(Sketcher.Constraint("Radius", 48, Q("86.5 mm")))
sketch6.addConstraint(Sketcher.Constraint("Radius", 49, Q("6.5 mm")))
sketch6.addConstraint(Sketcher.Constraint("Radius", 52, Q("86.5 mm")))
sketch6.addConstraint(Sketcher.Constraint("Radius", 53, Q("6.5 mm")))
sketch6.addConstraint(Sketcher.Constraint("Radius", 56, Q("86.5 mm")))
sketch6.addConstraint(Sketcher.Constraint("Radius", 57, Q("6.5 mm")))
sketch6.addConstraint(Sketcher.Constraint("Radius", 60, Q("86.5 mm")))
sketch6.addConstraint(Sketcher.Constraint("Radius", 61, Q("6.5 mm")))
sketch6.addConstraint(Sketcher.Constraint("DistanceX", 0, 2, 0, 1, Q("35 mm")))
sketch6.addConstraint(Sketcher.Constraint("DistanceX", 2, 1, 2, 2, Q("35 mm")))
sketch6.addConstraint(Sketcher.Constraint("DistanceX", 4, 2, 4, 1, Q("35 mm")))
sketch6.addConstraint(Sketcher.Constraint("DistanceX", 6, 1, 6, 2, Q("35 mm")))
sketch6.addConstraint(Sketcher.Constraint("DistanceX", 8, 2, 8, 1, Q("35 mm")))
sketch6.addConstraint(Sketcher.Constraint("DistanceX", 10, 1, 10, 2, Q("35 mm")))
sketch6.addConstraint(Sketcher.Constraint("DistanceX", 12, 2, 12, 1, Q("35 mm")))
sketch6.addConstraint(Sketcher.Constraint("DistanceX", 14, 1, 14, 2, Q("35 mm")))
sketch6.addConstraint(Sketcher.Constraint("DistanceY", 48, 1, -1, 1, Q("17.714299 mm")))
sketch6.addConstraint(Sketcher.Constraint("DistanceY", 51, 1, -1, 1, Q("17.714299 mm")))
sketch6.addConstraint(Sketcher.Constraint("DistanceY", 60, 1, -1, 1, Q("17.714299 mm")))
sketch6.addConstraint(Sketcher.Constraint("DistanceY", 63, 1, -1, 1, Q("17.714299 mm")))
sketch6.addConstraint(Sketcher.Constraint("DistanceX", -1, 1, 17, 3, Q("304.060232 mm")))
sketch6.addConstraint(Sketcher.Constraint("DistanceY", 17, 3, -1, 1, Q("340.485688 mm")))
sketch6.addConstraint(Sketcher.Constraint("DistanceX", -1, 1, 19, 3, Q("311.560232 mm")))
sketch6.addConstraint(Sketcher.Constraint("DistanceY", 23, 3, -1, 1, Q("340.485688 mm")))
sketch6.addConstraint(Sketcher.Constraint("DistanceX", -1, 1, 29, 3, Q("356.439768 mm")))
sketch6.addConstraint(Sketcher.Constraint("DistanceX", -1, 1, 31, 3, Q("363.939768 mm")))
sketch6.addConstraint(Sketcher.Constraint("DistanceY", 31, 3, -1, 1, Q("340.485688 mm")))
sketch6.addConstraint(Sketcher.Constraint("DistanceY", 33, 3, -1, 1, Q("340.485688 mm")))
sketch6.addConstraint(Sketcher.Constraint("DistanceX", -1, 1, 41, 3, Q("356.439768 mm")))
sketch6.addConstraint(Sketcher.Constraint("DistanceX", -1, 1, 43, 3, Q("363.939768 mm")))
sketch6.addConstraint(Sketcher.Constraint("DistanceY", 49, 3, -1, 1, Q("24.185672 mm")))
sketch6.addConstraint(Sketcher.Constraint("DistanceY", 51, 3, -1, 1, Q("24.185672 mm")))
sketch6.addConstraint(Sketcher.Constraint("DistanceX", -1, 1, 57, 3, Q("304.060232 mm")))
sketch6.addConstraint(Sketcher.Constraint("DistanceX", -1, 1, 59, 3, Q("311.560232 mm")))
sketch6.addConstraint(Sketcher.Constraint("DistanceY", 61, 3, -1, 1, Q("24.185672 mm")))
sketch6.addConstraint(Sketcher.Constraint("DistanceY", 63, 3, -1, 1, Q("24.185672 mm")))
sketch6.addConstraint(Sketcher.Constraint("DistanceY", 16, 1, -1, 1, Q("344.249108 mm")))
sketch6.addConstraint(Sketcher.Constraint("DistanceX", -1, 1, 18, 2, Q("305.651171 mm")))
sketch6.addConstraint(Sketcher.Constraint("DistanceY", 19, 1, -1, 1, Q("330.203259 mm")))
sketch6.addConstraint(Sketcher.Constraint("DistanceY", 20, 1, -1, 1, Q("330.203259 mm")))
sketch6.addConstraint(Sketcher.Constraint("DistanceX", -1, 1, 22, 2, Q("178.906121 mm")))
sketch6.addConstraint(Sketcher.Constraint("DistanceX", -1, 1, 23, 1, Q("168.30675 mm")))
sketch6.addConstraint(Sketcher.Constraint("DistanceY", 23, 1, -1, 1, Q("344.249108 mm")))
sketch6.addConstraint(Sketcher.Constraint("DistanceX", -1, 1, 24, 1, Q("246.942708 mm")))
sketch6.addConstraint(Sketcher.Constraint("DistanceX", -1, 1, 25, 1, Q("245.723958 mm")))
sketch6.addConstraint(Sketcher.Constraint("DistanceX", -1, 1, 26, 2, Q("231.942708 mm")))
sketch6.addConstraint(Sketcher.Constraint("DistanceX", -1, 1, 27, 1, Q("230.723958 mm")))
sketch6.addConstraint(Sketcher.Constraint("DistanceY", 28, 1, -1, 1, Q("330.203259 mm")))
sketch6.addConstraint(Sketcher.Constraint("DistanceX", -1, 1, 29, 1, Q("362.348829 mm")))
sketch6.addConstraint(Sketcher.Constraint("DistanceY", 31, 1, -1, 1, Q("344.249108 mm")))
sketch6.addConstraint(Sketcher.Constraint("DistanceX", -1, 1, 32, 1, Q("499.69325 mm")))
sketch6.addConstraint(Sketcher.Constraint("DistanceY", 32, 1, -1, 1, Q("344.249108 mm")))
sketch6.addConstraint(Sketcher.Constraint("DistanceX", -1, 1, 33, 1, Q("489.093879 mm")))
sketch6.addConstraint(Sketcher.Constraint("DistanceY", 35, 1, -1, 1, Q("330.203259 mm")))
sketch6.addConstraint(Sketcher.Constraint("DistanceX", -1, 1, 36, 1, Q("437.276042 mm")))
sketch6.addConstraint(Sketcher.Constraint("DistanceX", -1, 1, 37, 1, Q("436.057292 mm")))
sketch6.addConstraint(Sketcher.Constraint("DistanceX", -1, 1, 38, 2, Q("422.276042 mm")))
sketch6.addConstraint(Sketcher.Constraint("DistanceX", -1, 1, 39, 1, Q("421.057292 mm")))
sketch6.addConstraint(Sketcher.Constraint("DistanceX", -1, 1, 41, 1, Q("362.348829 mm")))
sketch6.addConstraint(Sketcher.Constraint("DistanceY", 41, 1, -1, 1, Q("134.454022 mm")))
sketch6.addConstraint(Sketcher.Constraint("DistanceX", -1, 1, 44, 1, Q("499.69325 mm")))
sketch6.addConstraint(Sketcher.Constraint("DistanceX", -1, 1, 45, 1, Q("489.093879 mm")))
sketch6.addConstraint(Sketcher.Constraint("DistanceY", 46, 2, -1, 1, Q("134.454022 mm")))
sketch6.addConstraint(Sketcher.Constraint("DistanceX", -1, 1, 48, 1, Q("437.276042 mm")))
sketch6.addConstraint(Sketcher.Constraint("DistanceX", -1, 1, 49, 1, Q("436.057292 mm")))
sketch6.addConstraint(Sketcher.Constraint("DistanceX", -1, 1, 50, 2, Q("422.276042 mm")))
sketch6.addConstraint(Sketcher.Constraint("DistanceY", 53, 1, -1, 1, Q("134.454022 mm")))
sketch6.addConstraint(Sketcher.Constraint("DistanceX", -1, 1, 54, 2, Q("178.906121 mm")))
sketch6.addConstraint(Sketcher.Constraint("DistanceX", -1, 1, 55, 1, Q("168.30675 mm")))
sketch6.addConstraint(Sketcher.Constraint("DistanceX", -1, 1, 58, 2, Q("305.651171 mm")))
sketch6.addConstraint(Sketcher.Constraint("DistanceY", 58, 2, -1, 1, Q("134.454022 mm")))
sketch6.addConstraint(Sketcher.Constraint("DistanceX", -1, 1, 60, 1, Q("246.942708 mm")))
sketch6.addConstraint(Sketcher.Constraint("DistanceX", -1, 1, 61, 1, Q("245.723958 mm")))
sketch6.addConstraint(Sketcher.Constraint("DistanceX", -1, 1, 62, 2, Q("231.942708 mm")))
sketch6.addConstraint(Sketcher.Constraint("DistanceX", -1, 1, 1, 3, Q("221.333333 mm")))
sketch6.addConstraint(Sketcher.Constraint("DistanceY", 1, 3, -1, 1, Q("333.666667 mm")))
sketch6.addConstraint(Sketcher.Constraint("DistanceX", -1, 1, 3, 3, Q("256.333333 mm")))
sketch6.addConstraint(Sketcher.Constraint("DistanceX", -1, 1, 5, 3, Q("411.666667 mm")))
sketch6.addConstraint(Sketcher.Constraint("DistanceY", 5, 3, -1, 1, Q("333.666667 mm")))
sketch6.addConstraint(Sketcher.Constraint("DistanceX", -1, 1, 7, 3, Q("446.666667 mm")))
sketch6.addConstraint(Sketcher.Constraint("DistanceX", -1, 1, 9, 3, Q("411.666667 mm")))
sketch6.addConstraint(Sketcher.Constraint("DistanceY", 9, 3, -1, 1, Q("143.333333 mm")))
sketch6.addConstraint(Sketcher.Constraint("DistanceX", -1, 1, 11, 3, Q("446.666667 mm")))
sketch6.addConstraint(Sketcher.Constraint("DistanceX", -1, 1, 13, 3, Q("221.333333 mm")))
sketch6.addConstraint(Sketcher.Constraint("DistanceY", 13, 3, -1, 1, Q("143.333333 mm")))
sketch6.addConstraint(Sketcher.Constraint("DistanceX", -1, 1, 15, 3, Q("256.333333 mm")))
sketch6.addConstraint(Sketcher.Constraint("DistanceX", -1, 1, 21, 3, Q("166.106435 mm")))
sketch6.addConstraint(Sketcher.Constraint("DistanceX", -1, 1, 25, 3, Q("246.333333 mm")))
sketch6.addConstraint(Sketcher.Constraint("DistanceX", -1, 1, 27, 3, Q("231.333333 mm")))
sketch6.addConstraint(Sketcher.Constraint("DistanceX", -1, 1, 35, 3, Q("501.893565 mm")))
sketch6.addConstraint(Sketcher.Constraint("DistanceX", -1, 1, 37, 3, Q("436.666667 mm")))
sketch6.addConstraint(Sketcher.Constraint("DistanceX", -1, 1, 39, 3, Q("421.666667 mm")))
sketch6.addConstraint(Sketcher.Constraint("DistanceX", -1, 1, 45, 3, Q("494.393565 mm")))
sketch6.addConstraint(Sketcher.Constraint("DistanceX", -1, 1, 47, 3, Q("501.893565 mm")))
sketch6.addConstraint(Sketcher.Constraint("DistanceX", -1, 1, 53, 3, Q("166.106435 mm")))
sketch6.addConstraint(Sketcher.Constraint("DistanceX", -1, 1, 55, 3, Q("173.606435 mm")))
sketch6.addConstraint(Sketcher.Constraint("DistanceX", -1, 1, 0, 2, Q("221.333333 mm")))
sketch6.addConstraint(Sketcher.Constraint("DistanceX", -1, 1, 1, 1, Q("221.333333 mm")))
sketch6.addConstraint(Sketcher.Constraint("DistanceX", -1, 1, 4, 2, Q("411.666667 mm")))
sketch6.addConstraint(Sketcher.Constraint("DistanceX", -1, 1, 5, 1, Q("411.666667 mm")))
sketch6.addConstraint(Sketcher.Constraint("DistanceX", -1, 1, 8, 2, Q("411.666667 mm")))
sketch6.addConstraint(Sketcher.Constraint("DistanceX", -1, 1, 9, 1, Q("411.666667 mm")))
sketch6.addConstraint(Sketcher.Constraint("DistanceX", -1, 1, 12, 2, Q("221.333333 mm")))
sketch6.addConstraint(Sketcher.Constraint("DistanceX", -1, 1, 13, 1, Q("221.333333 mm")))
sketch6.addConstraint(Sketcher.Constraint("DistanceX", -1, 1, 17, 1, Q("298.760546 mm")))
sketch6.addConstraint(Sketcher.Constraint("DistanceX", -1, 1, 21, 1, Q("172.015496 mm")))
sketch6.addConstraint(Sketcher.Constraint("DistanceX", -1, 1, 30, 2, Q("369.239454 mm")))
sketch6.addConstraint(Sketcher.Constraint("DistanceX", -1, 1, 34, 2, Q("495.984504 mm")))
sketch6.addConstraint(Sketcher.Constraint("DistanceX", -1, 1, 40, 1, Q("350.530708 mm")))
sketch6.addConstraint(Sketcher.Constraint("DistanceX", -1, 1, 42, 2, Q("369.239454 mm")))
sketch6.addConstraint(Sketcher.Constraint("DistanceX", -1, 1, 43, 1, Q("358.640083 mm")))
sketch6.addConstraint(Sketcher.Constraint("DistanceX", -1, 1, 47, 1, Q("507.802625 mm")))
sketch6.addConstraint(Sketcher.Constraint("DistanceX", -1, 1, 52, 1, Q("160.197375 mm")))
sketch6.addConstraint(Sketcher.Constraint("DistanceX", -1, 1, 56, 1, Q("309.359917 mm")))
sketch6.addConstraint(Sketcher.Constraint("DistanceX", -1, 1, 57, 1, Q("298.760546 mm")))
sketch6.addConstraint(Sketcher.Constraint("DistanceX", -1, 1, 59, 1, Q("317.469292 mm")))
pocket5 = doc.addObject("PartDesign::Pocket", "Pocket004")
body.addObject(pocket5)
pocket5.Profile = sketch6
pocket5.Length = 30
pocket5.Reversed = True

doc.recompute()
